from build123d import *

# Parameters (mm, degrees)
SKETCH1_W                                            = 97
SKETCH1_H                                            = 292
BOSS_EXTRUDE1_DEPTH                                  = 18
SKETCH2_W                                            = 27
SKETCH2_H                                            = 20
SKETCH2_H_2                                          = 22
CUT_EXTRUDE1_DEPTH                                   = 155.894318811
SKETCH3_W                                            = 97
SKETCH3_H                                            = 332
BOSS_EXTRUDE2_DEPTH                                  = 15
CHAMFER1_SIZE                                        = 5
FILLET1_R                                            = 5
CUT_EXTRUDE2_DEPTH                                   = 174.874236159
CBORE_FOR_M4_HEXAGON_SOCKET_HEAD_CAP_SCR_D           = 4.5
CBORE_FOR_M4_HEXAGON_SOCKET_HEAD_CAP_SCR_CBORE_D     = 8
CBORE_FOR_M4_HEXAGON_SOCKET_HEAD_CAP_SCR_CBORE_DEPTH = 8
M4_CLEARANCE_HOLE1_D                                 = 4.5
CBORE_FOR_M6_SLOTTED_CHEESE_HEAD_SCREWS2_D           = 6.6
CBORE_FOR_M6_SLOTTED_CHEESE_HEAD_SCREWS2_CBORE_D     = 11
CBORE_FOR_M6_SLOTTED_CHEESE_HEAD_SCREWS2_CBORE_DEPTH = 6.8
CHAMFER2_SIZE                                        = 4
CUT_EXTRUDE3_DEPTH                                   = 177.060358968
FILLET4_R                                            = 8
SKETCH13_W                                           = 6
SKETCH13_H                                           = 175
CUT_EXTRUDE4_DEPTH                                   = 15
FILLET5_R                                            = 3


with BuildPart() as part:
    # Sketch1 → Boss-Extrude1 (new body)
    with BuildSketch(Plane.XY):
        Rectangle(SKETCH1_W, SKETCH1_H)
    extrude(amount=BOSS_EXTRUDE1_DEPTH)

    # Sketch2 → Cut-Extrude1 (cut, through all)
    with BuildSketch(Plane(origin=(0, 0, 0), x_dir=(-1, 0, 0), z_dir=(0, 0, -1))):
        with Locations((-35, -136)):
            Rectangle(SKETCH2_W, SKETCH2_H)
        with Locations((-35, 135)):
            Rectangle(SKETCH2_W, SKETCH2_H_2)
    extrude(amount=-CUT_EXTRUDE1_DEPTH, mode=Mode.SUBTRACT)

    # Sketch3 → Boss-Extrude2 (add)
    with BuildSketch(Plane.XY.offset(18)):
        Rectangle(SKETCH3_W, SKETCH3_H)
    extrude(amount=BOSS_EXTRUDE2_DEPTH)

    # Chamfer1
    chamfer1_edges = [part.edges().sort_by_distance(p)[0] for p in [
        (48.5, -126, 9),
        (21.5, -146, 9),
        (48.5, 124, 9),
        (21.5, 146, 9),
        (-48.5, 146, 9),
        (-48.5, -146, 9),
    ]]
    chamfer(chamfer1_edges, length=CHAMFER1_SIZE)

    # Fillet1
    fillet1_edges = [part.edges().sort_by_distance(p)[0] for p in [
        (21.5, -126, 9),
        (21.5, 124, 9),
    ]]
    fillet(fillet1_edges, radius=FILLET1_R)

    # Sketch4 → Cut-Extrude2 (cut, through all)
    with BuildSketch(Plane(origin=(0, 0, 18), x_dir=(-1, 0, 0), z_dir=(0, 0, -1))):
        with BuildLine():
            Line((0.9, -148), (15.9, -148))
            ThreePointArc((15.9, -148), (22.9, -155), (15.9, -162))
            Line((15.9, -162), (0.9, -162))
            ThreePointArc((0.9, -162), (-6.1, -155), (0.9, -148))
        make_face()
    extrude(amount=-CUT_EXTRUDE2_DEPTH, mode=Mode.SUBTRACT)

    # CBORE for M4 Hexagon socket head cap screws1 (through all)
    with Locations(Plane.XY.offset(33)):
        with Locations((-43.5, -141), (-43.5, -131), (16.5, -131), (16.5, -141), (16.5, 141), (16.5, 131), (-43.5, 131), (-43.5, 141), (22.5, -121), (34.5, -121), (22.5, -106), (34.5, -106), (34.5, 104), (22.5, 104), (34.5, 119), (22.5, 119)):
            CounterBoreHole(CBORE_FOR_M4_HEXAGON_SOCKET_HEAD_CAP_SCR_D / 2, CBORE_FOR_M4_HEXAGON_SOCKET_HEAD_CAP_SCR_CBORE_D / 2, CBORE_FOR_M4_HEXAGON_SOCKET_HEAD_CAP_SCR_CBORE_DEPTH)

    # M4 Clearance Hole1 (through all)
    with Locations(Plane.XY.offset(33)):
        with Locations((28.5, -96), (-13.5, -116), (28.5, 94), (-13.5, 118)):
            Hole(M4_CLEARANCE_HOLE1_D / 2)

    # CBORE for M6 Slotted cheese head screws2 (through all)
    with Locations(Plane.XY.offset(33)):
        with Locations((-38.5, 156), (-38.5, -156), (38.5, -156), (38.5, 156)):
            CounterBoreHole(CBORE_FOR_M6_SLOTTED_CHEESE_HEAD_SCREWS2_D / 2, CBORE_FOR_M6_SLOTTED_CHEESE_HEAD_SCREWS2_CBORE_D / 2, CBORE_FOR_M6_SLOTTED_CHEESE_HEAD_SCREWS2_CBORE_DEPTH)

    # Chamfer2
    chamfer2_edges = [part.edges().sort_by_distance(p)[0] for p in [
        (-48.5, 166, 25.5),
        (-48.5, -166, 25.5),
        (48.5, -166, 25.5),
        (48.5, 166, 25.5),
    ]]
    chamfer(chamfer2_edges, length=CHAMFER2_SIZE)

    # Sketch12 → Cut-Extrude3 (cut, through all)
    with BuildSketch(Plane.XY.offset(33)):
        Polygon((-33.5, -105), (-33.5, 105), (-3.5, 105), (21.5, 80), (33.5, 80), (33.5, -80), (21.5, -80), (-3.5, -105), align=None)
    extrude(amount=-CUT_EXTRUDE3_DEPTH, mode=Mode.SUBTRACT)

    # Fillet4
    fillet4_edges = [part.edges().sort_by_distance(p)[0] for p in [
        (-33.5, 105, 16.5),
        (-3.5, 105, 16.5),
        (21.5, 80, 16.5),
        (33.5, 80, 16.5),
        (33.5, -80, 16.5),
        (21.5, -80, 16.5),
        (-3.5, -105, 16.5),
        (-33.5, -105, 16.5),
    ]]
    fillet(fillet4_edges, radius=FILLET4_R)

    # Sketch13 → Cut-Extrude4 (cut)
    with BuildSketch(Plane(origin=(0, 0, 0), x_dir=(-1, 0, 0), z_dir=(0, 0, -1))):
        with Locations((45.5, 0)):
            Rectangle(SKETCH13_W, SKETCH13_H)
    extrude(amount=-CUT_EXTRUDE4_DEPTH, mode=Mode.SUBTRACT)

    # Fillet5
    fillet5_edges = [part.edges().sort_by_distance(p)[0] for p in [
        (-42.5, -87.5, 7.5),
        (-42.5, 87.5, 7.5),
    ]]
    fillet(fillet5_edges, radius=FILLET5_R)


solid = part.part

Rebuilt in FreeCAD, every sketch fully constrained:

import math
import FreeCAD as App
import Part
import Sketcher

V = App.Vector


def edges_at(feature, points):
    """Names of the edges that pass closest to the given points."""
    edges = feature.Shape.Edges
    near = lambda p: min(range(len(edges)), key=lambda i: edges[i].distToShape(Part.Vertex(*p))[0])
    return sorted({f"Edge{near(p) + 1}" for p in points})

doc = App.newDocument("Part")
body = doc.addObject("PartDesign::Body", "Body")

# Sketch on XY plane
sketch1 = doc.addObject("Sketcher::SketchObject", "Sketch")
body.addObject(sketch1)
sketch1.AttachmentSupport = (doc.XY_Plane, [""])
sketch1.MapMode = "FlatFace"
sketch1.addGeometry([
    Part.LineSegment(V(-48.5, 146, 0), V(-48.5, -146, 0)),
    Part.LineSegment(V(-48.5, -146, 0), V(48.5, -146, 0)),
    Part.LineSegment(V(48.5, -146, 0), V(48.5, 146, 0)),
    Part.LineSegment(V(48.5, 146, 0), V(-48.5, 146, 0)),
], False)
sketch1.addConstraint([
    Sketcher.Constraint("Coincident", 0, 2, 1, 1),
    Sketcher.Constraint("Coincident", 1, 2, 2, 1),
    Sketcher.Constraint("Coincident", 2, 2, 3, 1),
    Sketcher.Constraint("Coincident", 3, 2, 0, 1),
    Sketcher.Constraint("Vertical", 0),
    Sketcher.Constraint("Horizontal", 1),
    Sketcher.Constraint("Vertical", 2),
    Sketcher.Constraint("Horizontal", 3),
    Sketcher.Constraint("Symmetric", 0, 2, 2, 2, -1, 1),
    Sketcher.Constraint("DistanceX", 1, 1, 1, 2, 97.0),
    Sketcher.Constraint("DistanceY", 0, 2, 0, 1, 292.0),
])
pad1 = doc.addObject("PartDesign::Pad", "Pad")
body.addObject(pad1)
pad1.Profile = sketch1
pad1.Length = 18

# Sketch on XY plane
sketch2 = doc.addObject("Sketcher::SketchObject", "Sketch001")
body.addObject(sketch2)
sketch2.AttachmentSupport = (doc.XY_Plane, [""])
sketch2.MapMode = "FlatFace"
sketch2.addGeometry([
    Part.LineSegment(V(48.5, -126, 0), V(48.5, -146, 0)),  # 0
    Part.LineSegment(V(48.5, -146, 0), V(21.5, -146, 0)),  # 1
    Part.LineSegment(V(21.5, -146, 0), V(21.5, -126, 0)),  # 2
    Part.LineSegment(V(21.5, -126, 0), V(48.5, -126, 0)),  # 3
    Part.LineSegment(V(48.5, 146, 0), V(48.5, 124, 0)),  # 4
    Part.LineSegment(V(48.5, 124, 0), V(21.5, 124, 0)),  # 5
    Part.LineSegment(V(21.5, 124, 0), V(21.5, 146, 0)),  # 6
    Part.LineSegment(V(21.5, 146, 0), V(48.5, 146, 0)),  # 7
], False)
sketch2.addConstraint([
    Sketcher.Constraint("Coincident", 0, 2, 1, 1),
    Sketcher.Constraint("Coincident", 1, 2, 2, 1),
    Sketcher.Constraint("Coincident", 2, 2, 3, 1),
    Sketcher.Constraint("Coincident", 3, 2, 0, 1),
    Sketcher.Constraint("Coincident", 4, 2, 5, 1),
    Sketcher.Constraint("Coincident", 5, 2, 6, 1),
    Sketcher.Constraint("Coincident", 6, 2, 7, 1),
    Sketcher.Constraint("Coincident", 7, 2, 4, 1),
    Sketcher.Constraint("Vertical", 0),
    Sketcher.Constraint("Horizontal", 1),
    Sketcher.Constraint("Vertical", 2),
    Sketcher.Constraint("Horizontal", 3),
    Sketcher.Constraint("Vertical", 4),
    Sketcher.Constraint("Horizontal", 5),
    Sketcher.Constraint("Vertical", 6),
    Sketcher.Constraint("Horizontal", 7),
    Sketcher.Constraint("Symmetric", 1, 2, 6, 2, -1),
    Sketcher.Constraint("Vertical", 3, 2, 4, 2),
    Sketcher.Constraint("DistanceX", 1, 2, 1, 1, 27.0),
    Sketcher.Constraint("DistanceY", 0, 2, 0, 1, 20.0),
    Sketcher.Constraint("DistanceY", 4, 2, 4, 1, 22.0),
    Sketcher.Constraint("DistanceY", 0, 2, -1, 1, 146.0),
    Sketcher.Constraint("DistanceX", -1, 1, 0, 2, 48.5),
])
pocket1 = doc.addObject("PartDesign::Pocket", "Pocket")
body.addObject(pocket1)
pocket1.Profile = sketch2
pocket1.Type = "ThroughAll"
pocket1.Reversed = True

# Sketch on XY plane
sketch3 = doc.addObject("Sketcher::SketchObject", "Sketch002")
body.addObject(sketch3)
sketch3.AttachmentSupport = (doc.XY_Plane, [""])
sketch3.MapMode = "FlatFace"
sketch3.AttachmentOffset = App.Placement(V(0, 0, 18), App.Rotation())
sketch3.addGeometry([
    Part.LineSegment(V(-48.5, 166, 0), V(-48.5, -166, 0)),
    Part.LineSegment(V(-48.5, -166, 0), V(48.5, -166, 0)),
    Part.LineSegment(V(48.5, -166, 0), V(48.5, 166, 0)),
    Part.LineSegment(V(48.5, 166, 0), V(-48.5, 166, 0)),
], False)
sketch3.addConstraint([
    Sketcher.Constraint("Coincident", 0, 2, 1, 1),
    Sketcher.Constraint("Coincident", 1, 2, 2, 1),
    Sketcher.Constraint("Coincident", 2, 2, 3, 1),
    Sketcher.Constraint("Coincident", 3, 2, 0, 1),
    Sketcher.Constraint("Vertical", 0),
    Sketcher.Constraint("Horizontal", 1),
    Sketcher.Constraint("Vertical", 2),
    Sketcher.Constraint("Horizontal", 3),
    Sketcher.Constraint("Symmetric", 0, 2, 2, 2, -1, 1),
    Sketcher.Constraint("DistanceX", 1, 1, 1, 2, 97.0),
    Sketcher.Constraint("DistanceY", 0, 2, 0, 1, 332.0),
])
pad2 = doc.addObject("PartDesign::Pad", "Pad001")
body.addObject(pad2)
pad2.Profile = sketch3
pad2.Length = 15
doc.recompute()

chamfer = doc.addObject("PartDesign::Chamfer", "Chamfer")
body.addObject(chamfer)
chamfer.Base = (pad2, edges_at(pad2, [
    (48.5, -126, 9),
    (21.5, -146, 9),
    (48.5, 124, 9),
    (21.5, 146, 9),
    (-48.5, 146, 9),
    (-48.5, -146, 9),
]))
chamfer.Size = 5
doc.recompute()

fillet = doc.addObject("PartDesign::Fillet", "Fillet")
body.addObject(fillet)
fillet.Base = (chamfer, edges_at(chamfer, [(21.5, -126, 9), (21.5, 124, 9)]))
fillet.Radius = 5

# Sketch on XY plane
sketch4 = doc.addObject("Sketcher::SketchObject", "Sketch003")
body.addObject(sketch4)
sketch4.AttachmentSupport = (doc.XY_Plane, [""])
sketch4.MapMode = "FlatFace"
sketch4.AttachmentOffset = App.Placement(V(0, 0, 18), App.Rotation())
sketch4.addGeometry([
    Part.LineSegment(V(-15.9, -148, 0), V(-0.9, -148, 0)),
    Part.ArcOfCircle(Part.Circle(V(-0.9, -155, 0), V(0, 0, 1), 7), math.radians(-90), math.radians(90)),
    Part.LineSegment(V(-0.9, -162, 0), V(-15.9, -162, 0)),
    Part.ArcOfCircle(Part.Circle(V(-15.9, -155, 0), V(0, 0, 1), 7), math.radians(90), math.radians(270)),
], False)
sketch4.addConstraint([
    Sketcher.Constraint("Tangent", 0, 2, 1, 2),
    Sketcher.Constraint("Tangent", 1, 1, 2, 1),
    Sketcher.Constraint("Tangent", 2, 2, 3, 2),
    Sketcher.Constraint("Tangent", 3, 1, 0, 1),
    Sketcher.Constraint("Horizontal", 0),
    Sketcher.Constraint("Horizontal", 2),
    Sketcher.Constraint("Radius", 1, 7.0),
    Sketcher.Constraint("DistanceX", 0, 1, 0, 2, 15.0),
    Sketcher.Constraint("DistanceY", 1, 3, -1, 1, 155.0),
    Sketcher.Constraint("DistanceX", 1, 3, -1, 1, 0.9),
])
pocket2 = doc.addObject("PartDesign::Pocket", "Pocket001")
body.addObject(pocket2)
pocket2.Profile = sketch4
pocket2.Type = "ThroughAll"
pocket2.Reversed = True

# Sketch on XY plane
sketch5 = doc.addObject("Sketcher::SketchObject", "Sketch004")
body.addObject(sketch5)
sketch5.AttachmentSupport = (doc.XY_Plane, [""])
sketch5.MapMode = "FlatFace"
sketch5.AttachmentOffset = App.Placement(V(0, 0, 33), App.Rotation())
sketch5.addGeometry([
    Part.Circle(V(-43.5, -141, 0), V(0, 0, 1), 2.25),  # 0
    Part.Circle(V(-43.5, -131, 0), V(0, 0, 1), 2.25),  # 1
    Part.Circle(V(16.5, -131, 0), V(0, 0, 1), 2.25),  # 2
    Part.Circle(V(16.5, -141, 0), V(0, 0, 1), 2.25),  # 3
    Part.Circle(V(16.5, 141, 0), V(0, 0, 1), 2.25),  # 4
    Part.Circle(V(16.5, 131, 0), V(0, 0, 1), 2.25),  # 5
    Part.Circle(V(-43.5, 131, 0), V(0, 0, 1), 2.25),  # 6
    Part.Circle(V(-43.5, 141, 0), V(0, 0, 1), 2.25),  # 7
    Part.Circle(V(22.5, -121, 0), V(0, 0, 1), 2.25),  # 8
    Part.Circle(V(34.5, -121, 0), V(0, 0, 1), 2.25),  # 9
    Part.Circle(V(22.5, -106, 0), V(0, 0, 1), 2.25),  # 10
    Part.Circle(V(34.5, -106, 0), V(0, 0, 1), 2.25),  # 11
    Part.Circle(V(34.5, 104, 0), V(0, 0, 1), 2.25),  # 12
    Part.Circle(V(22.5, 104, 0), V(0, 0, 1), 2.25),  # 13
    Part.Circle(V(34.5, 119, 0), V(0, 0, 1), 2.25),  # 14
    Part.Circle(V(22.5, 119, 0), V(0, 0, 1), 2.25),  # 15
], False)
sketch5.addConstraint([
    Sketcher.Constraint("Equal", 0, 1),
    Sketcher.Constraint("Equal", 1, 2),
    Sketcher.Constraint("Equal", 2, 3),
    Sketcher.Constraint("Equal", 3, 4),
    Sketcher.Constraint("Equal", 4, 5),
    Sketcher.Constraint("Equal", 5, 6),
    Sketcher.Constraint("Equal", 6, 7),
    Sketcher.Constraint("Equal", 7, 8),
    Sketcher.Constraint("Equal", 8, 9),
    Sketcher.Constraint("Equal", 9, 10),
    Sketcher.Constraint("Equal", 10, 11),
    Sketcher.Constraint("Equal", 11, 12),
    Sketcher.Constraint("Equal", 12, 13),
    Sketcher.Constraint("Equal", 13, 14),
    Sketcher.Constraint("Equal", 14, 15),
    Sketcher.Constraint("Symmetric", 3, 3, 4, 3, -1),
    Sketcher.Constraint("Symmetric", 2, 3, 5, 3, -1),
    Sketcher.Constraint("Symmetric", 1, 3, 6, 3, -1),
    Sketcher.Constraint("Symmetric", 0, 3, 7, 3, -1),
    Sketcher.Constraint("Horizontal", 1, 3, 2, 3),
    Sketcher.Constraint("Horizontal", 0, 3, 3, 3),
    Sketcher.Constraint("Horizontal", 8, 3, 9, 3),
    Sketcher.Constraint("Horizontal", 10, 3, 11, 3),
    Sketcher.Constraint("Horizontal", 12, 3, 13, 3),
    Sketcher.Constraint("Horizontal", 14, 3, 15, 3),
    Sketcher.Constraint("Vertical", 0, 3, 1, 3),
    Sketcher.Constraint("Vertical", 2, 3, 3, 3),
    Sketcher.Constraint("Vertical", 8, 3, 10, 3),
    Sketcher.Constraint("Vertical", 9, 3, 11, 3),
    Sketcher.Constraint("Vertical", 11, 3, 12, 3),
    Sketcher.Constraint("Vertical", 10, 3, 13, 3),
    Sketcher.Constraint("Vertical", 12, 3, 14, 3),
    Sketcher.Constraint("Vertical", 13, 3, 15, 3),
    Sketcher.Constraint("Diameter", 0, 4.5),
    Sketcher.Constraint("DistanceY", 0, 3, -1, 1, 141.0),
    Sketcher.Constraint("DistanceY", 1, 3, -1, 1, 131.0),
    Sketcher.Constraint("DistanceY", 8, 3, -1, 1, 121.0),
    Sketcher.Constraint("DistanceY", 10, 3, -1, 1, 106.0),
    Sketcher.Constraint("DistanceY", -1, 1, 12, 3, 104.0),
    Sketcher.Constraint("DistanceY", -1, 1, 14, 3, 119.0),
    Sketcher.Constraint("DistanceX", 1, 3, 2, 3, 60.0),
    Sketcher.Constraint("DistanceX", 2, 3, 8, 3, 6.0),
    Sketcher.Constraint("DistanceX", 8, 3, 9, 3, 12.0),
    Sketcher.Constraint("DistanceX", 0, 3, -1, 1, 43.5),
])
doc.recompute()
hole = doc.addObject("PartDesign::Hole", "Hole")
body.addObject(hole)
hole.Profile = sketch5
hole.ThreadType = "None"
hole.Diameter = 4.5
hole.DepthType = "ThroughAll"
hole.HoleCutType = "Counterbore"
hole.HoleCutDiameter = 8
hole.HoleCutDepth = 8

# Sketch on XY plane
sketch6 = doc.addObject("Sketcher::SketchObject", "Sketch005")
body.addObject(sketch6)
sketch6.AttachmentSupport = (doc.XY_Plane, [""])
sketch6.MapMode = "FlatFace"
sketch6.AttachmentOffset = App.Placement(V(0, 0, 33), App.Rotation())
sketch6.addGeometry([
    Part.Circle(V(28.5, -96, 0), V(0, 0, 1), 2.25),
    Part.Circle(V(-13.5, -116, 0), V(0, 0, 1), 2.25),
    Part.Circle(V(28.5, 94, 0), V(0, 0, 1), 2.25),
    Part.Circle(V(-13.5, 118, 0), V(0, 0, 1), 2.25),
], False)
sketch6.addConstraint([
    Sketcher.Constraint("Equal", 0, 1),
    Sketcher.Constraint("Equal", 1, 2),
    Sketcher.Constraint("Equal", 2, 3),
    Sketcher.Constraint("Vertical", 0, 3, 2, 3),
    Sketcher.Constraint("Vertical", 1, 3, 3, 3),
    Sketcher.Constraint("Diameter", 0, 4.5),
    Sketcher.Constraint("DistanceY", 0, 3, -1, 1, 96.0),
    Sketcher.Constraint("DistanceY", 1, 3, -1, 1, 116.0),
    Sketcher.Constraint("DistanceY", -1, 1, 2, 3, 94.0),
    Sketcher.Constraint("DistanceY", -1, 1, 3, 3, 118.0),
    Sketcher.Constraint("DistanceX", 1, 3, 0, 3, 42.0),
    Sketcher.Constraint("DistanceX", -1, 1, 0, 3, 28.5),
])
doc.recompute()
hole2 = doc.addObject("PartDesign::Hole", "Hole001")
body.addObject(hole2)
hole2.Profile = sketch6
hole2.ThreadType = "None"
hole2.Diameter = 4.5
hole2.DepthType = "ThroughAll"

# Sketch on XY plane
sketch7 = doc.addObject("Sketcher::SketchObject", "Sketch006")
body.addObject(sketch7)
sketch7.AttachmentSupport = (doc.XY_Plane, [""])
sketch7.MapMode = "FlatFace"
sketch7.AttachmentOffset = App.Placement(V(0, 0, 33), App.Rotation())
sketch7.addGeometry([
    Part.Circle(V(-38.5, 156, 0), V(0, 0, 1), 3.3),
    Part.Circle(V(-38.5, -156, 0), V(0, 0, 1), 3.3),
    Part.Circle(V(38.5, -156, 0), V(0, 0, 1), 3.3),
    Part.Circle(V(38.5, 156, 0), V(0, 0, 1), 3.3),
], False)
sketch7.addConstraint([
    Sketcher.Constraint("Equal", 0, 1),
    Sketcher.Constraint("Equal", 1, 2),
    Sketcher.Constraint("Equal", 2, 3),
    Sketcher.Constraint("Symmetric", 0, 3, 2, 3, -1, 1),
    Sketcher.Constraint("Symmetric", 1, 3, 3, 3, -1, 1),
    Sketcher.Constraint("Symmetric", 1, 3, 2, 3, -2),
    Sketcher.Constraint("Diameter", 0, 6.6),
    Sketcher.Constraint("DistanceY", -1, 1, 0, 3, 156.0),
    Sketcher.Constraint("DistanceX", 1, 3, 2, 3, 77.0),
])
doc.recompute()
hole3 = doc.addObject("PartDesign::Hole", "Hole002")
body.addObject(hole3)
hole3.Profile = sketch7
hole3.ThreadType = "None"
hole3.Diameter = 6.6
hole3.DepthType = "ThroughAll"
hole3.HoleCutType = "Counterbore"
hole3.HoleCutDiameter = 11
hole3.HoleCutDepth = 6.8
doc.recompute()

chamfer2 = doc.addObject("PartDesign::Chamfer", "Chamfer001")
body.addObject(chamfer2)
chamfer2.Base = (hole3, edges_at(hole3, [
    (-48.5, 166, 25.5),
    (-48.5, -166, 25.5),
    (48.5, -166, 25.5),
    (48.5, 166, 25.5),
]))
chamfer2.Size = 4

# Sketch on XY plane
sketch8 = doc.addObject("Sketcher::SketchObject", "Sketch007")
body.addObject(sketch8)
sketch8.AttachmentSupport = (doc.XY_Plane, [""])
sketch8.MapMode = "FlatFace"
sketch8.AttachmentOffset = App.Placement(V(0, 0, 33), App.Rotation())
sketch8.addGeometry([
    Part.LineSegment(V(-33.5, 105, 0), V(-33.5, -105, 0)),  # 0
    Part.LineSegment(V(-33.5, -105, 0), V(-3.5, -105, 0)),  # 1
    Part.LineSegment(V(-3.5, -105, 0), V(21.5, -80, 0)),  # 2
    Part.LineSegment(V(21.5, -80, 0), V(33.5, -80, 0)),  # 3
    Part.LineSegment(V(33.5, -80, 0), V(33.5, 80, 0)),  # 4
    Part.LineSegment(V(33.5, 80, 0), V(21.5, 80, 0)),  # 5
    Part.LineSegment(V(21.5, 80, 0), V(-3.5, 105, 0)),  # 6
    Part.LineSegment(V(-3.5, 105, 0), V(-33.5, 105, 0)),  # 7
], False)
sketch8.addConstraint([
    Sketcher.Constraint("Coincident", 0, 2, 1, 1),
    Sketcher.Constraint("Coincident", 1, 2, 2, 1),
    Sketcher.Constraint("Coincident", 2, 2, 3, 1),
    Sketcher.Constraint("Coincident", 3, 2, 4, 1),
    Sketcher.Constraint("Coincident", 4, 2, 5, 1),
    Sketcher.Constraint("Coincident", 5, 2, 6, 1),
    Sketcher.Constraint("Coincident", 6, 2, 7, 1),
    Sketcher.Constraint("Coincident", 7, 2, 0, 1),
    Sketcher.Constraint("Vertical", 0),
    Sketcher.Constraint("Horizontal", 1),
    Sketcher.Constraint("Horizontal", 3),
    Sketcher.Constraint("Vertical", 4),
    Sketcher.Constraint("Horizontal", 5),
    Sketcher.Constraint("Horizontal", 7),
    Sketcher.Constraint("Symmetric", 2, 2, 5, 2, -1),
    Sketcher.Constraint("Symmetric", 1, 2, 6, 2, -1),
    Sketcher.Constraint("Perpendicular", 2, 6),
    Sketcher.Constraint("DistanceX", 1, 1, 1, 2, 30.0),
    Sketcher.Constraint("DistanceX", 3, 1, 3, 2, 12.0),
    Sketcher.Constraint("DistanceY", 0, 2, 0, 1, 210.0),
    Sketcher.Constraint("DistanceY", 4, 1, 4, 2, 160.0),
    Sketcher.Constraint("DistanceX", 0, 2, -1, 1, 33.5),
])
pocket3 = doc.addObject("PartDesign::Pocket", "Pocket002")
body.addObject(pocket3)
pocket3.Profile = sketch8
pocket3.Type = "ThroughAll"
doc.recompute()

fillet2 = doc.addObject("PartDesign::Fillet", "Fillet001")
body.addObject(fillet2)
fillet2.Base = (pocket3, edges_at(pocket3, [
    (-33.5, 105, 16.5),
    (-3.5, 105, 16.5),
    (21.5, 80, 16.5),
    (33.5, 80, 16.5),
    (33.5, -80, 16.5),
    (21.5, -80, 16.5),
    (-3.5, -105, 16.5),
    (-33.5, -105, 16.5),
]))
fillet2.Radius = 8

# Sketch on XY plane
sketch9 = doc.addObject("Sketcher::SketchObject", "Sketch008")
body.addObject(sketch9)
sketch9.AttachmentSupport = (doc.XY_Plane, [""])
sketch9.MapMode = "FlatFace"
sketch9.addGeometry([
    Part.LineSegment(V(-42.5, 87.5, 0), V(-42.5, -87.5, 0)),
    Part.LineSegment(V(-42.5, -87.5, 0), V(-48.5, -87.5, 0)),
    Part.LineSegment(V(-48.5, -87.5, 0), V(-48.5, 87.5, 0)),
    Part.LineSegment(V(-48.5, 87.5, 0), V(-42.5, 87.5, 0)),
], False)
sketch9.addConstraint([
    Sketcher.Constraint("Coincident", 0, 2, 1, 1),
    Sketcher.Constraint("Coincident", 1, 2, 2, 1),
    Sketcher.Constraint("Coincident", 2, 2, 3, 1),
    Sketcher.Constraint("Coincident", 3, 2, 0, 1),
    Sketcher.Constraint("Vertical", 0),
    Sketcher.Constraint("Horizontal", 1),
    Sketcher.Constraint("Vertical", 2),
    Sketcher.Constraint("Horizontal", 3),
    Sketcher.Constraint("DistanceX", 1, 2, 1, 1, 6.0),
    Sketcher.Constraint("DistanceY", 0, 2, 0, 1, 175.0),
    Sketcher.Constraint("DistanceX", 0, 2, -1, 1, 42.5),
    Sketcher.Constraint("DistanceY", 0, 2, -1, 1, 87.5),
])
pocket4 = doc.addObject("PartDesign::Pocket", "Pocket003")
body.addObject(pocket4)
pocket4.Profile = sketch9
pocket4.Length = 15
pocket4.Reversed = True
doc.recompute()

fillet3 = doc.addObject("PartDesign::Fillet", "Fillet002")
body.addObject(fillet3)
fillet3.Base = (pocket4, edges_at(pocket4, [(-42.5, -87.5, 7.5), (-42.5, 87.5, 7.5)]))
fillet3.Radius = 3

doc.recompute()
